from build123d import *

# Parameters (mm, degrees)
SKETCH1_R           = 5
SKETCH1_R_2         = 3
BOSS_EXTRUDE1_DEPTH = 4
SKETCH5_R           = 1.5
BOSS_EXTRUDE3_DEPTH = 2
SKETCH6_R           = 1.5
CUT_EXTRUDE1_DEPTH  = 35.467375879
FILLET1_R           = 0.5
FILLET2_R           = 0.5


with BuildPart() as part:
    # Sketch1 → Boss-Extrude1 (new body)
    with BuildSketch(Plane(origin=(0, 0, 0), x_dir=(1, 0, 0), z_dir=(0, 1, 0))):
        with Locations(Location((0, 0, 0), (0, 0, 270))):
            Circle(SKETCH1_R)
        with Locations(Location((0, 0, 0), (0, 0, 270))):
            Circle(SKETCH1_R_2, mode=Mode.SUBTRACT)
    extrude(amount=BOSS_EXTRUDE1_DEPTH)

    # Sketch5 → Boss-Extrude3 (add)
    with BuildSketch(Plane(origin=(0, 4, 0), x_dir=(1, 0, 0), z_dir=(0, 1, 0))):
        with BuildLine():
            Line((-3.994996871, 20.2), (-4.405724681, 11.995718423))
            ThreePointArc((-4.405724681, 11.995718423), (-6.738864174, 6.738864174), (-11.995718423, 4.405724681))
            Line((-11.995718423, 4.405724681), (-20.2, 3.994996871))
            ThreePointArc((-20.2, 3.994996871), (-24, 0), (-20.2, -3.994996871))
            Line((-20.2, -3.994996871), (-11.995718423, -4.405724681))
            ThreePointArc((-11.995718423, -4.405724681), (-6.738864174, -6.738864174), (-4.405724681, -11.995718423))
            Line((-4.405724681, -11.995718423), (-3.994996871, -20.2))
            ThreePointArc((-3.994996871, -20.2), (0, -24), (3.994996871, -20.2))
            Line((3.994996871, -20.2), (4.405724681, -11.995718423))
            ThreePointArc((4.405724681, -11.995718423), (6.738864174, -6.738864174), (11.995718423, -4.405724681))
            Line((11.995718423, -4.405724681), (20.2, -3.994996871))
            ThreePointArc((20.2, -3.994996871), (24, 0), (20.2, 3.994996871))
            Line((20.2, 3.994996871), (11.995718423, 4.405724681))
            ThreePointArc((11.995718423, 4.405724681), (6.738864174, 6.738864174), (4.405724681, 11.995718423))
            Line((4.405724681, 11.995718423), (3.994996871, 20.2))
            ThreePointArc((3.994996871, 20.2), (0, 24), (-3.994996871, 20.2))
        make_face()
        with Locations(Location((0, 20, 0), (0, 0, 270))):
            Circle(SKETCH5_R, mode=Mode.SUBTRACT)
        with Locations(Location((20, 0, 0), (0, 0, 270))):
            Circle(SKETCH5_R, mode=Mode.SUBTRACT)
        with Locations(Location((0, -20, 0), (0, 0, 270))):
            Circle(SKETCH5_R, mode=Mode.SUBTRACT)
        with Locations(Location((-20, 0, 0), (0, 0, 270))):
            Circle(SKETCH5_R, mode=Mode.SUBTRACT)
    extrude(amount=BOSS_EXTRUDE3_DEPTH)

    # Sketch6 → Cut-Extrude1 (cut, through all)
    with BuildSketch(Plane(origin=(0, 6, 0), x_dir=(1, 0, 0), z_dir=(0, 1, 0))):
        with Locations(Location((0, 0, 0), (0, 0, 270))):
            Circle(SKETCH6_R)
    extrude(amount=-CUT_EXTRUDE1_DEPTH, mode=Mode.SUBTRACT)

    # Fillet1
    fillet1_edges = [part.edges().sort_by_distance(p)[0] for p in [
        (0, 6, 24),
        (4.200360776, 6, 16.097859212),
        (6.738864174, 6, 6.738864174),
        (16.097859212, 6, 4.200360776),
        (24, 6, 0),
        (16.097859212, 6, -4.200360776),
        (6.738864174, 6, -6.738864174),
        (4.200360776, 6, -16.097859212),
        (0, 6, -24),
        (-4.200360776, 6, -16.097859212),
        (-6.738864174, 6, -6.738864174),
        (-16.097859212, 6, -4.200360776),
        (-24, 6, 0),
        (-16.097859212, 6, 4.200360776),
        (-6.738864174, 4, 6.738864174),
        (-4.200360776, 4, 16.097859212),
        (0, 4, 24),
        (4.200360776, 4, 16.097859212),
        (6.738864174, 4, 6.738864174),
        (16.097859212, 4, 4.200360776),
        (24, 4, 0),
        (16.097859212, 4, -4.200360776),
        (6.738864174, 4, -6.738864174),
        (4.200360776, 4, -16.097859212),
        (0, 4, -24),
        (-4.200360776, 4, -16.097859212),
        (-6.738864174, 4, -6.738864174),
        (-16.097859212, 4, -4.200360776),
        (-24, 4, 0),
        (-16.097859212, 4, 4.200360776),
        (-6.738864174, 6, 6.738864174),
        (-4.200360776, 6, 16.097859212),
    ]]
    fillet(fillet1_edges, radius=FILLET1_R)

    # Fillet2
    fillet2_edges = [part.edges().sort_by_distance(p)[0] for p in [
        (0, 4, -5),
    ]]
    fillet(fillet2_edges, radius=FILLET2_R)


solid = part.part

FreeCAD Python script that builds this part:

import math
import FreeCAD as App
import Part
import Sketcher
from FreeCAD import Vector


def edges_at(feature, points):
    """Names of the edges that pass closest to the given points."""
    edges = feature.Shape.Edges
    near = lambda p: min(range(len(edges)), key=lambda i: edges[i].distToShape(Part.Vertex(*p))[0])
    return sorted({f"Edge{near(p) + 1}" for p in points})

doc = App.newDocument("Part")
body = doc.addObject("PartDesign::Body", "Body")

# Sketch on XZ plane
sketch1 = body.newObject("Sketcher::SketchObject", "Sketch")
sketch1.AttachmentSupport = (doc.getObject("XZ_Plane"), [""])
sketch1.MapMode = "FlatFace"
sketch1.addGeometry(Part.Circle(Vector(0, 0, 0), Vector(0, 0, 1), 5), False)
sketch1.addGeometry(Part.Circle(Vector(0, 0, 0), Vector(0, 0, 1), 3), False)
sketch1.addConstraint(Sketcher.Constraint("Coincident", 0, 3, -1, 1))
sketch1.addConstraint(Sketcher.Constraint("Coincident", 1, 3, -1, 1))
sketch1.addConstraint(Sketcher.Constraint("Diameter", 0, 10.0))
sketch1.addConstraint(Sketcher.Constraint("Diameter", 1, 6.0))
pad1 = body.newObject("PartDesign::Pad", "Pad")
pad1.Profile = sketch1
pad1.Length = 4
pad1.Reversed = True

# Sketch on XZ plane
sketch2 = body.newObject("Sketcher::SketchObject", "Sketch001")
sketch2.AttachmentSupport = (doc.getObject("XZ_Plane"), [""])
sketch2.MapMode = "FlatFace"
sketch2.AttachmentOffset = App.Placement(Vector(0, 0, -4), App.Rotation())
sketch2.addGeometry(Part.LineSegment(Vector(-4, -20.2, 0), Vector(-4.4, -12, 0)), False)
sketch2.addGeometry(Part.ArcOfCircle(Part.Circle(Vector(-12.4, -12.4, 0), Vector(0, 0, 1), 8), math.radians(3), math.radians(87)), False)
sketch2.addGeometry(Part.LineSegment(Vector(-12, -4.4, 0), Vector(-20.2, -4, 0)), False)
sketch2.addGeometry(Part.ArcOfCircle(Part.Circle(Vector(-20, 0, 0), Vector(0, 0, 1), 4), math.radians(93), math.radians(267)), False)
sketch2.addGeometry(Part.LineSegment(Vector(-20.2, 4, 0), Vector(-12, 4.4, 0)), False)
sketch2.addGeometry(Part.ArcOfCircle(Part.Circle(Vector(-12.4, 12.4, 0), Vector(0, 0, 1), 8), math.radians(-87), math.radians(-3)), False)
sketch2.addGeometry(Part.LineSegment(Vector(-4.4, 12, 0), Vector(-4, 20.2, 0)), False)
sketch2.addGeometry(Part.ArcOfCircle(Part.Circle(Vector(0, 20, 0), Vector(0, 0, 1), 4), math.radians(3), math.radians(177)), False)
sketch2.addGeometry(Part.LineSegment(Vector(4, 20.2, 0), Vector(4.4, 12, 0)), False)
sketch2.addGeometry(Part.ArcOfCircle(Part.Circle(Vector(12.4, 12.4, 0), Vector(0, 0, 1), 8), math.radians(-177), math.radians(-93)), False)
sketch2.addGeometry(Part.LineSegment(Vector(12, 4.4, 0), Vector(20.2, 4, 0)), False)
sketch2.addGeometry(Part.ArcOfCircle(Part.Circle(Vector(20, 0, 0), Vector(0, 0, 1), 4), math.radians(-87), math.radians(87)), False)
sketch2.addGeometry(Part.LineSegment(Vector(20.2, -4, 0), Vector(12, -4.4, 0)), False)
sketch2.addGeometry(Part.ArcOfCircle(Part.Circle(Vector(12.4, -12.4, 0), Vector(0, 0, 1), 8), math.radians(93), math.radians(177)), False)
sketch2.addGeometry(Part.LineSegment(Vector(4.4, -12, 0), Vector(4, -20.2, 0)), False)
sketch2.addGeometry(Part.ArcOfCircle(Part.Circle(Vector(0, -20, 0), Vector(0, 0, 1), 4), math.radians(-177), math.radians(-3)), False)
sketch2.addGeometry(Part.Circle(Vector(0, 20, 0), Vector(0, 0, 1), 1.5), False)
sketch2.addGeometry(Part.Circle(Vector(-20, 0, 0), Vector(0, 0, 1), 1.5), False)
sketch2.addGeometry(Part.Circle(Vector(20, 0, 0), Vector(0, 0, 1), 1.5), False)
sketch2.addGeometry(Part.Circle(Vector(0, -20, 0), Vector(0, 0, 1), 1.5), False)
sketch2.addConstraint(Sketcher.Constraint("Tangent", 0, 2, 1, 1))
sketch2.addConstraint(Sketcher.Constraint("Tangent", 1, 2, 2, 1))
sketch2.addConstraint(Sketcher.Constraint("Tangent", 2, 2, 3, 2))
sketch2.addConstraint(Sketcher.Constraint("Tangent", 3, 1, 4, 1))
sketch2.addConstraint(Sketcher.Constraint("Tangent", 4, 2, 5, 1))
sketch2.addConstraint(Sketcher.Constraint("Tangent", 5, 2, 6, 1))
sketch2.addConstraint(Sketcher.Constraint("Tangent", 6, 2, 7, 2))
sketch2.addConstraint(Sketcher.Constraint("Tangent", 7, 1, 8, 1))
sketch2.addConstraint(Sketcher.Constraint("Tangent", 8, 2, 9, 1))
sketch2.addConstraint(Sketcher.Constraint("Tangent", 9, 2, 10, 1))
sketch2.addConstraint(Sketcher.Constraint("Tangent", 10, 2, 11, 2))
sketch2.addConstraint(Sketcher.Constraint("Tangent", 11, 1, 12, 1))
sketch2.addConstraint(Sketcher.Constraint("Tangent", 12, 2, 13, 1))
sketch2.addConstraint(Sketcher.Constraint("Tangent", 13, 2, 14, 1))
sketch2.addConstraint(Sketcher.Constraint("Tangent", 14, 2, 15, 2))
sketch2.addConstraint(Sketcher.Constraint("Tangent", 15, 1, 0, 1))
sketch2.addConstraint(Sketcher.Constraint("Coincident", 16, 3, 7, 3))
sketch2.addConstraint(Sketcher.Constraint("Coincident", 17, 3, 3, 3))
sketch2.addConstraint(Sketcher.Constraint("Coincident", 18, 3, 11, 3))
sketch2.addConstraint(Sketcher.Constraint("Coincident", 19, 3, 15, 3))
sketch2.addConstraint(Sketcher.Constraint("Equal", 1, 5))
sketch2.addConstraint(Sketcher.Constraint("Equal", 3, 7))
sketch2.addConstraint(Sketcher.Constraint("Equal", 5, 9))
sketch2.addConstraint(Sketcher.Constraint("Equal", 7, 11))
sketch2.addConstraint(Sketcher.Constraint("Equal", 9, 13))
sketch2.addConstraint(Sketcher.Constraint("Equal", 11, 15))
sketch2.addConstraint(Sketcher.Constraint("Equal", 16, 17))
sketch2.addConstraint(Sketcher.Constraint("Equal", 17, 18))
sketch2.addConstraint(Sketcher.Constraint("Equal", 18, 19))
sketch2.addConstraint(Sketcher.Constraint("Symmetric", 1, 3, 9, 3, -1, 1))
sketch2.addConstraint(Sketcher.Constraint("Symmetric", 3, 3, 11, 3, -1, 1))
sketch2.addConstraint(Sketcher.Constraint("Symmetric", 5, 3, 13, 3, -1, 1))
sketch2.addConstraint(Sketcher.Constraint("Symmetric", 7, 3, 15, 3, -1, 1))
sketch2.addConstraint(Sketcher.Constraint("Symmetric", 5, 3, 9, 3, -2))
sketch2.addConstraint(Sketcher.Constraint("PointOnObject", 3, 3, -1))
sketch2.addConstraint(Sketcher.Constraint("PointOnObject", 7, 3, -2))
sketch2.addConstraint(Sketcher.Constraint("Perpendicular", 0, 4))
sketch2.addConstraint(Sketcher.Constraint("Equal", 0, 2))
sketch2.addConstraint(Sketcher.Constraint("Diameter", 16, 3.0))
sketch2.addConstraint(Sketcher.Constraint("Radius", 1, 8.0))
sketch2.addConstraint(Sketcher.Constraint("Radius", 3, 4.0))
sketch2.addConstraint(Sketcher.Constraint("DistanceX", 3, 3, -1, 1, 20.0))
sketch2.addConstraint(Sketcher.Constraint("DistanceX", 2, 2, -1, 1, 20.2))
pad2 = body.newObject("PartDesign::Pad", "Pad001")
pad2.Profile = sketch2
pad2.Length = 2
pad2.Reversed = True

# Sketch on XZ plane
sketch3 = body.newObject("Sketcher::SketchObject", "Sketch002")
sketch3.AttachmentSupport = (doc.getObject("XZ_Plane"), [""])
sketch3.MapMode = "FlatFace"
sketch3.AttachmentOffset = App.Placement(Vector(0, 0, -6), App.Rotation())
sketch3.addGeometry(Part.Circle(Vector(0, 0, 0), Vector(0, 0, 1), 1.5), False)
sketch3.addConstraint(Sketcher.Constraint("Coincident", 0, 3, -1, 1))
sketch3.addConstraint(Sketcher.Constraint("Diameter", 0, 3.0))
pocket1 = body.newObject("PartDesign::Pocket", "Pocket")
pocket1.Profile = sketch3
pocket1.Type = "ThroughAll"
pocket1.Reversed = True
doc.recompute()

fillet = body.newObject("PartDesign::Fillet", "Fillet")
fillet.Base = (pocket1, edges_at(pocket1, [
    (0, 6, 24),
    (4.2, 6, 16.098),
    (6.739, 6, 6.739),
    (16.098, 6, 4.2),
    (24, 6, 0),
    (16.098, 6, -4.2),
    (6.739, 6, -6.739),
    (4.2, 6, -16.098),
    (0, 6, -24),
    (-4.2, 6, -16.098),
    (-6.739, 6, -6.739),
    (-16.098, 6, -4.2),
    (-24, 6, 0),
    (-16.098, 6, 4.2),
    (-6.739, 4, 6.739),
    (-4.2, 4, 16.098),
    (0, 4, 24),
    (4.2, 4, 16.098),
    (6.739, 4, 6.739),
    (16.098, 4, 4.2),
    (24, 4, 0),
    (16.098, 4, -4.2),
    (6.739, 4, -6.739),
    (4.2, 4, -16.098),
    (0, 4, -24),
    (-4.2, 4, -16.098),
    (-6.739, 4, -6.739),
    (-16.098, 4, -4.2),
    (-24, 4, 0),
    (-16.098, 4, 4.2),
    (-6.739, 6, 6.739),
    (-4.2, 6, 16.098),
]))
fillet.Radius = 0.5
doc.recompute()

fillet2 = body.newObject("PartDesign::Fillet", "Fillet001")
fillet2.Base = (fillet, edges_at(fillet, [(0, 4, -5)]))
fillet2.Radius = 0.5

doc.recompute()
